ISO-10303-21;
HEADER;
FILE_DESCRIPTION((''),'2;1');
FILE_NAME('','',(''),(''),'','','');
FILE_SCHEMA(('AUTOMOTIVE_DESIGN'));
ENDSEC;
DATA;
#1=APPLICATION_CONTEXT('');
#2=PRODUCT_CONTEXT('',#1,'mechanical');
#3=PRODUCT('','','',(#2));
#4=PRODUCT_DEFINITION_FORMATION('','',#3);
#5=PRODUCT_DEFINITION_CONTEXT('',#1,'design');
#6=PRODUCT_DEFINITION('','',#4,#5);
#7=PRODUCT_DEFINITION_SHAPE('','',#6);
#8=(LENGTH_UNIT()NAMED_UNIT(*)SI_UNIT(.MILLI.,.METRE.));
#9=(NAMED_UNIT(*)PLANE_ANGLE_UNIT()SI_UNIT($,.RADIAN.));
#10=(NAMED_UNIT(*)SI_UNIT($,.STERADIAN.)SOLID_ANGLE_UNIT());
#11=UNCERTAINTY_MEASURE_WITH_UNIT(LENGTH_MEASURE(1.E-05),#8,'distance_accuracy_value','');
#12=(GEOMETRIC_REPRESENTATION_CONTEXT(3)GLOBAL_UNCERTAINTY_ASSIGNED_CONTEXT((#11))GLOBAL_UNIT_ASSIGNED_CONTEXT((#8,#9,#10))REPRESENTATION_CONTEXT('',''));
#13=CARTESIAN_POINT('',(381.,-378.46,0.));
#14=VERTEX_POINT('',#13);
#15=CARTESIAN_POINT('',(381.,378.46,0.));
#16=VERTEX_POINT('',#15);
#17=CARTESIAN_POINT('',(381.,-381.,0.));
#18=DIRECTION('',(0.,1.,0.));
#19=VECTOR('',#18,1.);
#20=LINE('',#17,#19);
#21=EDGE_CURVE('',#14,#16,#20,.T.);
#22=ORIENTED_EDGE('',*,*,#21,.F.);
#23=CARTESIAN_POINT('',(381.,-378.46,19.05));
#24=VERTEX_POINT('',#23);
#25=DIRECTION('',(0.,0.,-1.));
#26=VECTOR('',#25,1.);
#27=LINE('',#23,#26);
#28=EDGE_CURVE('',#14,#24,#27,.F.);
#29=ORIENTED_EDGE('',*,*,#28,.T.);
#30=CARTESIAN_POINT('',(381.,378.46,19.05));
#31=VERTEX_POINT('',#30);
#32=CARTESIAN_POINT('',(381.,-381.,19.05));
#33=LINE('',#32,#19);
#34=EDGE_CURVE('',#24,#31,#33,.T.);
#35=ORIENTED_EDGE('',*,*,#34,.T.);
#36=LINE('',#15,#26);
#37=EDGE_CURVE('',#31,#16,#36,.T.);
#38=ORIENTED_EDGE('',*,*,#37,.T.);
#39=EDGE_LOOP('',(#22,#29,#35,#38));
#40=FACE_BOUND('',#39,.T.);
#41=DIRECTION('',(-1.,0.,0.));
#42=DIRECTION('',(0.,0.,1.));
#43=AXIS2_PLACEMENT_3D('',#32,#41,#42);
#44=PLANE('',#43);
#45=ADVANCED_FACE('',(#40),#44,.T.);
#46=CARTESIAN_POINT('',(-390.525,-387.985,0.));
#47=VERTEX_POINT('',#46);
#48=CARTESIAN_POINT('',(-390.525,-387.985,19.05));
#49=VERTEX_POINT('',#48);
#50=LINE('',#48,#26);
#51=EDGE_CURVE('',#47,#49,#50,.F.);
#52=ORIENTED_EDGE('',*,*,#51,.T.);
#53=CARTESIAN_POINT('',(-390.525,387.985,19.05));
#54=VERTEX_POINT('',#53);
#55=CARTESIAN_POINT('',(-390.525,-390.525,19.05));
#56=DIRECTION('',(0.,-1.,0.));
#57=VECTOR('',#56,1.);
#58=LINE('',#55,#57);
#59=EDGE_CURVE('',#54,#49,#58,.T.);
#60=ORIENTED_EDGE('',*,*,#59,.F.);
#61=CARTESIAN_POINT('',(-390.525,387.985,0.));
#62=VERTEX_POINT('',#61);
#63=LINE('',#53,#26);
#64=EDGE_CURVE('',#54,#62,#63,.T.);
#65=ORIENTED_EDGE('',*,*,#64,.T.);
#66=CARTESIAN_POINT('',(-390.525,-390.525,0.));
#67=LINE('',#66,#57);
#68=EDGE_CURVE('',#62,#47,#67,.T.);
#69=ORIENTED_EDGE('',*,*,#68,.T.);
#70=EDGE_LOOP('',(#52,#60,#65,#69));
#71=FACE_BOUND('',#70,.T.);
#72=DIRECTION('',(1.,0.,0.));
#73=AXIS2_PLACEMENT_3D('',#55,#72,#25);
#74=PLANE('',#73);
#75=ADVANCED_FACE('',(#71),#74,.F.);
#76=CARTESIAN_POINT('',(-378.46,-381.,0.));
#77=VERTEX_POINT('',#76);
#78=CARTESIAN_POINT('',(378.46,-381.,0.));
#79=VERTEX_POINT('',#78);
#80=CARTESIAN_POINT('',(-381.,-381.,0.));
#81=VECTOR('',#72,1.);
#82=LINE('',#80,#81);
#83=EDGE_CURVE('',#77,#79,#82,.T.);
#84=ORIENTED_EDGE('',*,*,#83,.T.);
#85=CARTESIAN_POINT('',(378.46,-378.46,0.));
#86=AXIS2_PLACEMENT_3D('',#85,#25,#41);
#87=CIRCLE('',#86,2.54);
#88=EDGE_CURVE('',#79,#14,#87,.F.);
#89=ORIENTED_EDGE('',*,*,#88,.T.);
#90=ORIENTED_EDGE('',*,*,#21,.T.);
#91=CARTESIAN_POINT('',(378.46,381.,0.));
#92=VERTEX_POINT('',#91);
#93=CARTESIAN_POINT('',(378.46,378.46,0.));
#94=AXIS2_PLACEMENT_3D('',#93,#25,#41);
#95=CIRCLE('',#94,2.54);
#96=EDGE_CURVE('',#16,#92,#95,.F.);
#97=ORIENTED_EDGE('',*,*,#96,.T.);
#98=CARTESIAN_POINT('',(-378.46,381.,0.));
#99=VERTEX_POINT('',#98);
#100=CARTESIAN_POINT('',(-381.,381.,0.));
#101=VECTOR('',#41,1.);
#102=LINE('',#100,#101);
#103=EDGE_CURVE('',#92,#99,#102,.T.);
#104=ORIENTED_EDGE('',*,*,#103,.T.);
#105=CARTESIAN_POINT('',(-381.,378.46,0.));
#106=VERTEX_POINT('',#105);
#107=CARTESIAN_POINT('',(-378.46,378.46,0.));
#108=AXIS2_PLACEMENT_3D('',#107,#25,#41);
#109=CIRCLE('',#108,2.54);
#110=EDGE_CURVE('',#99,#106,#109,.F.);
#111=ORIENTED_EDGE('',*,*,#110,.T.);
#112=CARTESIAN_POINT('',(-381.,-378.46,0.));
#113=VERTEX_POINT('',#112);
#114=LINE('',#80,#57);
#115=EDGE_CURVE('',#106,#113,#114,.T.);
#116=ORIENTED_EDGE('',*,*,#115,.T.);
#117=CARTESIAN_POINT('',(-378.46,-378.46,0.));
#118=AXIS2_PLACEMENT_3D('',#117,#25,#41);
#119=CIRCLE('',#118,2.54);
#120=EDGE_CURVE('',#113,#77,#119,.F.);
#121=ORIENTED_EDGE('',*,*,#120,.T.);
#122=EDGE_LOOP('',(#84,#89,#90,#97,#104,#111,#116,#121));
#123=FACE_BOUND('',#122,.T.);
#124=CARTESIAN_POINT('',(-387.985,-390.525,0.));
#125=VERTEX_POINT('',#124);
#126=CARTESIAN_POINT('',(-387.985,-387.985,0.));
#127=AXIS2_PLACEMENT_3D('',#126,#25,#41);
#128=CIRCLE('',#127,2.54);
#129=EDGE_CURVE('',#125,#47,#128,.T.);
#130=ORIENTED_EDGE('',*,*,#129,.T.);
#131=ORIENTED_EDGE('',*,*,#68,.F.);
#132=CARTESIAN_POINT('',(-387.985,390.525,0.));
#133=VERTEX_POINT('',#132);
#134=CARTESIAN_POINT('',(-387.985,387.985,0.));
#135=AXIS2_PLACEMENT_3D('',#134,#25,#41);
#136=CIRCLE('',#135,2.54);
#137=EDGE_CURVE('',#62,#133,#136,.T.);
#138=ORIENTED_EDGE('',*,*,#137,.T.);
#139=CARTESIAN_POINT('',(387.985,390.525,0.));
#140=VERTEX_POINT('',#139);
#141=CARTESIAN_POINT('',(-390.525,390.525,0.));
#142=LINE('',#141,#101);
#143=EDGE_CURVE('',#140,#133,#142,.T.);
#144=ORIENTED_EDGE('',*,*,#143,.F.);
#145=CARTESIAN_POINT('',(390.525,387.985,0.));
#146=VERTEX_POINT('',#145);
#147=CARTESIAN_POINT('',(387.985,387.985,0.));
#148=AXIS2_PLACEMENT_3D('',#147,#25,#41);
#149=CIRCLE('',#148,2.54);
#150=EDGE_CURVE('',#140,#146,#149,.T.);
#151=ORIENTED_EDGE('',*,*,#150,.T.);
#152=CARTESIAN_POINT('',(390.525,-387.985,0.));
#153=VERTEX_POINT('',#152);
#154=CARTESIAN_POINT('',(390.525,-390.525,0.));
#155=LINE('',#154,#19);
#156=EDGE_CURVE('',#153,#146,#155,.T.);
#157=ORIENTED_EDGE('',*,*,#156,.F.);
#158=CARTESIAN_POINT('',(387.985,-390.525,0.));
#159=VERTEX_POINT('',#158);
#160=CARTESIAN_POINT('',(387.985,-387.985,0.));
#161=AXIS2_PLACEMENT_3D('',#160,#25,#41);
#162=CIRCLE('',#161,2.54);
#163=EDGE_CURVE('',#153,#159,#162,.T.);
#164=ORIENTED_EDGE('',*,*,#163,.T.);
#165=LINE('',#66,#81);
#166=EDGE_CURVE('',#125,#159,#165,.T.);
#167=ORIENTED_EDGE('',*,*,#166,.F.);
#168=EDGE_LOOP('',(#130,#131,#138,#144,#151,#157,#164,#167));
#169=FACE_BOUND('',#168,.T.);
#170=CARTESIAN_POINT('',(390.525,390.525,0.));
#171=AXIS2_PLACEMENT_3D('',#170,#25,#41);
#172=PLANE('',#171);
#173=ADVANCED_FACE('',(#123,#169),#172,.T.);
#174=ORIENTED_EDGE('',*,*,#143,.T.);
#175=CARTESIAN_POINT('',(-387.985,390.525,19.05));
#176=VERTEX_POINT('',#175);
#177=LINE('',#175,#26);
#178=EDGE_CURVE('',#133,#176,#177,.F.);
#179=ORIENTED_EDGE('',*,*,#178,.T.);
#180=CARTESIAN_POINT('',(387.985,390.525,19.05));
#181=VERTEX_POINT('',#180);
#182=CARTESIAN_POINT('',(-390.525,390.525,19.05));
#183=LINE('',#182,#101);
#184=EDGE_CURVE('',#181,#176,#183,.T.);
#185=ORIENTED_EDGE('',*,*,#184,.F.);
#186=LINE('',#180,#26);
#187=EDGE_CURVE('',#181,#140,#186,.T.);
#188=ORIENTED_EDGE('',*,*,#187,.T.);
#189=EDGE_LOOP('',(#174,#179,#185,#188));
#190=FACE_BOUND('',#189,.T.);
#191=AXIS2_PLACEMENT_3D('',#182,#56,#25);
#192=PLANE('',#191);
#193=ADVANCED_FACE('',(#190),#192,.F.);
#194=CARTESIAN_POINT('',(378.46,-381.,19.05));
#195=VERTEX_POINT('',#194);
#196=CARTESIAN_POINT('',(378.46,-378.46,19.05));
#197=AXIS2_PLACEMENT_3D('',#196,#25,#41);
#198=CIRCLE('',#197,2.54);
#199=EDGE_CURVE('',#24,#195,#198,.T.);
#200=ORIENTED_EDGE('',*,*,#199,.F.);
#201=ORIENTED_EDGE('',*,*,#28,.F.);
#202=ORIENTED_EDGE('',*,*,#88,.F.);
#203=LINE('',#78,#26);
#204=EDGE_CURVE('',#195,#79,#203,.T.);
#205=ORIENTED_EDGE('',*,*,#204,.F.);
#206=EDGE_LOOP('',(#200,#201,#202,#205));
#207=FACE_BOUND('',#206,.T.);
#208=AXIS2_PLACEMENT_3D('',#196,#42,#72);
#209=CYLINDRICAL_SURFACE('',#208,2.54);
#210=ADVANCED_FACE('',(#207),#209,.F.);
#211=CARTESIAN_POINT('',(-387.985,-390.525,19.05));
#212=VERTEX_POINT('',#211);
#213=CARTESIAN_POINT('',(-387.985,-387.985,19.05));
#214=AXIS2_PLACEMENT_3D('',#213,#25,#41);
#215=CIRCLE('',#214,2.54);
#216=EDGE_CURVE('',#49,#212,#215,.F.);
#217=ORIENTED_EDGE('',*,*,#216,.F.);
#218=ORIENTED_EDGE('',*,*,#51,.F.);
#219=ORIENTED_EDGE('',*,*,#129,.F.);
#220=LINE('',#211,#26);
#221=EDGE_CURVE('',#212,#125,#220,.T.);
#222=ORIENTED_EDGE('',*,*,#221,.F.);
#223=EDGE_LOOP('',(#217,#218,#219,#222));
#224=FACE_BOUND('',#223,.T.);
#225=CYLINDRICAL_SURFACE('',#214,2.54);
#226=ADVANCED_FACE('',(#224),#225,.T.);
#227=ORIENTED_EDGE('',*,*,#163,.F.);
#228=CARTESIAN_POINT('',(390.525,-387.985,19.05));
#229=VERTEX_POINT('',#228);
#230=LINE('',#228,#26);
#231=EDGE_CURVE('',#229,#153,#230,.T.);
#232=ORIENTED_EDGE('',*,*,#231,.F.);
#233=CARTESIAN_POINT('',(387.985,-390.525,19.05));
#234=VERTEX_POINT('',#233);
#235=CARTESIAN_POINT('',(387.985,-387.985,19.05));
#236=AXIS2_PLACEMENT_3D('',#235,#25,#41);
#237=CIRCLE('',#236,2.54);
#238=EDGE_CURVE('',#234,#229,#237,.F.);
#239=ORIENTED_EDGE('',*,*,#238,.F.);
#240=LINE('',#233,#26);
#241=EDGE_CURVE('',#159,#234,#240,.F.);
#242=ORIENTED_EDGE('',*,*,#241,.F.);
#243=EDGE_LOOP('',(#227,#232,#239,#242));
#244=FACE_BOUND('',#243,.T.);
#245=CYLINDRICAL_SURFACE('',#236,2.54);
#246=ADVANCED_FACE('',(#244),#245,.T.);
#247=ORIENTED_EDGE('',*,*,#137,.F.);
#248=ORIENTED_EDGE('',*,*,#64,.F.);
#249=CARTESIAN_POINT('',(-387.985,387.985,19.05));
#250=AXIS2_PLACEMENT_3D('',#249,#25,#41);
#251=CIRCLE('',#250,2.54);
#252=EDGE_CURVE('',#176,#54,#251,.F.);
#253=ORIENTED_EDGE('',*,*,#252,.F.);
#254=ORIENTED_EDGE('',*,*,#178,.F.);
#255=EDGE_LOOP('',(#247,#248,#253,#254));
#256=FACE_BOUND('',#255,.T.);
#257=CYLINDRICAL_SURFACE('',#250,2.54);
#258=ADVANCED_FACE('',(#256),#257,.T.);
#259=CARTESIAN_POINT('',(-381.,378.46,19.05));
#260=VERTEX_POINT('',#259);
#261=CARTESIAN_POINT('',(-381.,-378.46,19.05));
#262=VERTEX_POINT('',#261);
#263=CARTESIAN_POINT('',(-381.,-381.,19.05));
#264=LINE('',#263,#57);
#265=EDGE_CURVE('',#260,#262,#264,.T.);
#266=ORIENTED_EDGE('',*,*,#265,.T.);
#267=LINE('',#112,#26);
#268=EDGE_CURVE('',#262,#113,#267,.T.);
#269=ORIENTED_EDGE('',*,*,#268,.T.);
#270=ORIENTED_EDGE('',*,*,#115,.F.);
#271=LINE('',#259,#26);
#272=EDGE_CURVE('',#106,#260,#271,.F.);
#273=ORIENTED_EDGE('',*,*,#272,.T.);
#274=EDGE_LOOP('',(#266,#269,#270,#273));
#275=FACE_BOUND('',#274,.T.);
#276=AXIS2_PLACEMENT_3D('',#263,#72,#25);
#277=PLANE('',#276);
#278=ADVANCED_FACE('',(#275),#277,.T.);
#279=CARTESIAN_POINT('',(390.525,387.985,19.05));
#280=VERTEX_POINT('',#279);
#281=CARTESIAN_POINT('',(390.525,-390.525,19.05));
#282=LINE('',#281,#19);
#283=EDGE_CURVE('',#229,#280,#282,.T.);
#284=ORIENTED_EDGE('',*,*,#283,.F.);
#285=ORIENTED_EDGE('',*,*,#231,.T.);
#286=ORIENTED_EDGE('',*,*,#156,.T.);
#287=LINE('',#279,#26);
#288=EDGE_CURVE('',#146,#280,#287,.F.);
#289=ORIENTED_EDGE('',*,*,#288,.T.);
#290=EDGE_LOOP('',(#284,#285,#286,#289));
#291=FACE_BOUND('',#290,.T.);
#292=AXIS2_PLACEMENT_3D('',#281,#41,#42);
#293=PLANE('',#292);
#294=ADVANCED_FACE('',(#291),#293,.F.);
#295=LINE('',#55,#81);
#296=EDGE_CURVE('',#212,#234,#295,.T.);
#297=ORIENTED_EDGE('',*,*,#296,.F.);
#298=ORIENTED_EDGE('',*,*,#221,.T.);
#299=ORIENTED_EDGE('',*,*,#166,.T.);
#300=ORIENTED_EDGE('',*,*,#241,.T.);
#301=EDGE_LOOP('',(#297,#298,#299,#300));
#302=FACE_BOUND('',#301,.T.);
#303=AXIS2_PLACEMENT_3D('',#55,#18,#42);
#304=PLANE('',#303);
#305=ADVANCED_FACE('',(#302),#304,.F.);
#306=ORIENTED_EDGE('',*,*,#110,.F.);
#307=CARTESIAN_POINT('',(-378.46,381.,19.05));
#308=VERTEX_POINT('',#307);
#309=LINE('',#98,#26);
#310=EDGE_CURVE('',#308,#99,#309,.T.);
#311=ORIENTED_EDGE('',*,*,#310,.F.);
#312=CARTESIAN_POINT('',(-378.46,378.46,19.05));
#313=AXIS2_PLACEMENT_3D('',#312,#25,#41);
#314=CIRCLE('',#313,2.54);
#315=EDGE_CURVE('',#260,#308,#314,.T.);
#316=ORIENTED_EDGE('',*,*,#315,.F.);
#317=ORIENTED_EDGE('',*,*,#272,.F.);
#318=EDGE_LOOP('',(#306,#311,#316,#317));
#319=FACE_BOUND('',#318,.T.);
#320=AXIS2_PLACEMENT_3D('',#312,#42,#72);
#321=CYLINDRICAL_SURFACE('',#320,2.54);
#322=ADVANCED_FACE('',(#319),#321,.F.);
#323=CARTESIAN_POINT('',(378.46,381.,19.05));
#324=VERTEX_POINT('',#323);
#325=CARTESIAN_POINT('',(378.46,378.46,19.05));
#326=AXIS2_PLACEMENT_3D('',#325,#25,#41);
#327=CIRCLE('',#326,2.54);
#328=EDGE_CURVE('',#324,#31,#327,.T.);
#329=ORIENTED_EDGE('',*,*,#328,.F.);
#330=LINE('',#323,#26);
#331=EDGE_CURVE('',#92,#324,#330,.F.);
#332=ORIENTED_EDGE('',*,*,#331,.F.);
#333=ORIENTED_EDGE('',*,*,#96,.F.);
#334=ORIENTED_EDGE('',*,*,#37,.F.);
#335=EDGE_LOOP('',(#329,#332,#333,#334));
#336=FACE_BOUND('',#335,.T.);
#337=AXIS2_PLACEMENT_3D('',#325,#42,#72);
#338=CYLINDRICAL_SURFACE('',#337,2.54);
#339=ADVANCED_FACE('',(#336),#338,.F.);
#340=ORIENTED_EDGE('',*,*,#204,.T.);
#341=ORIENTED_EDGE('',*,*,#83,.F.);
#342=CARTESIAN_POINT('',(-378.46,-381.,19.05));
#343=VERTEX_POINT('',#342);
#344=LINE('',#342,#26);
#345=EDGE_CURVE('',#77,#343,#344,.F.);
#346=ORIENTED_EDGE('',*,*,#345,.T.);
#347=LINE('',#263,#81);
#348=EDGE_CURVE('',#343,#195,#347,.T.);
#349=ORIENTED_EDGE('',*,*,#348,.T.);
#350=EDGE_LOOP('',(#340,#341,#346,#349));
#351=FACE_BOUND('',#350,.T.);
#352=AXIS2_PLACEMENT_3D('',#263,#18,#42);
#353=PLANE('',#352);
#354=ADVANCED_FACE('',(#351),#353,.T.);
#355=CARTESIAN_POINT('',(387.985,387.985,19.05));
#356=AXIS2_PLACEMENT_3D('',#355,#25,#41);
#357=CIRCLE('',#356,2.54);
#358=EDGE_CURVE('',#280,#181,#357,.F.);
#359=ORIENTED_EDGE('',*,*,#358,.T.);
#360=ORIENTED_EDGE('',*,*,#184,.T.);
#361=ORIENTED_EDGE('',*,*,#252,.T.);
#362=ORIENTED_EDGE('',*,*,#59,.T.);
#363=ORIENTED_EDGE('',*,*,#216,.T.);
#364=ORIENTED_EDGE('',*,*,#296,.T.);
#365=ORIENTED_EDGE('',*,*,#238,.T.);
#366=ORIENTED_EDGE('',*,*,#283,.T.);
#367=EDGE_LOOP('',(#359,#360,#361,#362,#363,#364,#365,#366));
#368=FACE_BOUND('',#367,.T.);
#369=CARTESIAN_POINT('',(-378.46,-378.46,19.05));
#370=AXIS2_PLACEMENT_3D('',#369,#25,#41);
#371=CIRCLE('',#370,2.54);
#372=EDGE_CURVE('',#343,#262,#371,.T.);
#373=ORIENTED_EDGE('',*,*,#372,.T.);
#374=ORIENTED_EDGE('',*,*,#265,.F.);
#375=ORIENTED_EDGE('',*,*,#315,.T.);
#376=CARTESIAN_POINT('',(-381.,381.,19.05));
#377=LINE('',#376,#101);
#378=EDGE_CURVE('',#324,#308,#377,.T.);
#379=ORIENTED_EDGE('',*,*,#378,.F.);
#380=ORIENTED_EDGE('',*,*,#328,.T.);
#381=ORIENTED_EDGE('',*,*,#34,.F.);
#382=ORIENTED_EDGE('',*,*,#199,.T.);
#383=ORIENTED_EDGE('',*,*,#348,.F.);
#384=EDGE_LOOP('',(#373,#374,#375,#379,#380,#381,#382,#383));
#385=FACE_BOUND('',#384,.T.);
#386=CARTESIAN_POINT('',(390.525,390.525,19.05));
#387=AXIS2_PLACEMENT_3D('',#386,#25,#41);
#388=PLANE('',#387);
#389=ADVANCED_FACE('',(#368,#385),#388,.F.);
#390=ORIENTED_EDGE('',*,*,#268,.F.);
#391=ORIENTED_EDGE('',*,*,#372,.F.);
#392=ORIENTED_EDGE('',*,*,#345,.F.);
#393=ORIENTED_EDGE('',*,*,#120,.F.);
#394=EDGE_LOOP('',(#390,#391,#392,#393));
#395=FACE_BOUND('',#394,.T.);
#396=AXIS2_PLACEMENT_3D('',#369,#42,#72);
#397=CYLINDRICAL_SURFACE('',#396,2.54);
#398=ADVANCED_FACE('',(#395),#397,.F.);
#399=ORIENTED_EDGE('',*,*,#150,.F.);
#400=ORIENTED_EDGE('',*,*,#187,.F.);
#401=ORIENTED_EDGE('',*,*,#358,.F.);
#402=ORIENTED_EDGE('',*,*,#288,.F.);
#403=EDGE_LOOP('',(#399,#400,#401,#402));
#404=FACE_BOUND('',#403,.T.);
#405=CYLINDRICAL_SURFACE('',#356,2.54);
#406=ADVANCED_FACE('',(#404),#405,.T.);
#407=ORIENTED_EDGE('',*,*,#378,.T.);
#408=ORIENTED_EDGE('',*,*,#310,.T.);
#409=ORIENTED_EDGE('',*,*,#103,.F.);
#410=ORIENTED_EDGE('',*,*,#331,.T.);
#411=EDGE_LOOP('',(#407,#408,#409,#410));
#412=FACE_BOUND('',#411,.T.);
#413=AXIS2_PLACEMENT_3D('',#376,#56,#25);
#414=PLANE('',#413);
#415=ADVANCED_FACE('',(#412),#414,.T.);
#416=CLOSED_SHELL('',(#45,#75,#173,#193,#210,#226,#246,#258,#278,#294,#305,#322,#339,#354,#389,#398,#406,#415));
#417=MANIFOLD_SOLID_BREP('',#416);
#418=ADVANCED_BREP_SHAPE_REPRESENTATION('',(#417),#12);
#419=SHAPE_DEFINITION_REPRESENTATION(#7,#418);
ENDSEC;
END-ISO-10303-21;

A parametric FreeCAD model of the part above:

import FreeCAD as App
import Part
import Sketcher

V = App.Vector
Q = App.Units.Quantity


def edges_at(feature, points):
    """Names of the edges that pass closest to the given points."""
    edges = feature.Shape.Edges
    near = lambda p: min(range(len(edges)), key=lambda i: edges[i].distToShape(Part.Vertex(*p))[0])
    return sorted({f"Edge{near(p) + 1}" for p in points})

doc = App.newDocument("Part")
body = doc.addObject("PartDesign::Body", "Body")

# Sketch on XY plane
sketch1 = body.newObject("Sketcher::SketchObject", "Sketch")
sketch1.AttachmentSupport = (doc.getObject("XY_Plane"), [""])
sketch1.MapMode = "FlatFace"
sketch1.addGeometry(Part.LineSegment(V(-391, 391, 0), V(-391, -391, 0)), False)
sketch1.addGeometry(Part.LineSegment(V(-391, -391, 0), V(391, -391, 0)), False)
sketch1.addGeometry(Part.LineSegment(V(391, -391, 0), V(391, 391, 0)), False)
sketch1.addGeometry(Part.LineSegment(V(391, 391, 0), V(-391, 391, 0)), False)
sketch1.addGeometry(Part.LineSegment(V(381, -381, 0), V(-381, -381, 0)), False)
sketch1.addGeometry(Part.LineSegment(V(-381, -381, 0), V(-381, 381, 0)), False)
sketch1.addGeometry(Part.LineSegment(V(-381, 381, 0), V(381, 381, 0)), False)
sketch1.addGeometry(Part.LineSegment(V(381, 381, 0), V(381, -381, 0)), False)
sketch1.addConstraint(Sketcher.Constraint("Coincident", 0, 2, 1, 1))
sketch1.addConstraint(Sketcher.Constraint("Coincident", 1, 2, 2, 1))
sketch1.addConstraint(Sketcher.Constraint("Coincident", 2, 2, 3, 1))
sketch1.addConstraint(Sketcher.Constraint("Coincident", 3, 2, 0, 1))
sketch1.addConstraint(Sketcher.Constraint("Coincident", 4, 2, 5, 1))
sketch1.addConstraint(Sketcher.Constraint("Coincident", 5, 2, 6, 1))
sketch1.addConstraint(Sketcher.Constraint("Coincident", 6, 2, 7, 1))
sketch1.addConstraint(Sketcher.Constraint("Coincident", 7, 2, 4, 1))
sketch1.addConstraint(Sketcher.Constraint("Vertical", 0))
sketch1.addConstraint(Sketcher.Constraint("Horizontal", 1))
sketch1.addConstraint(Sketcher.Constraint("Vertical", 2))
sketch1.addConstraint(Sketcher.Constraint("Horizontal", 3))
sketch1.addConstraint(Sketcher.Constraint("Horizontal", 4))
sketch1.addConstraint(Sketcher.Constraint("Vertical", 5))
sketch1.addConstraint(Sketcher.Constraint("Horizontal", 6))
sketch1.addConstraint(Sketcher.Constraint("Vertical", 7))
sketch1.addConstraint(Sketcher.Constraint("Symmetric", 0, 2, 2, 2, -1, 1))
sketch1.addConstraint(Sketcher.Constraint("Symmetric", 4, 2, 6, 2, -1, 1))
sketch1.addConstraint(Sketcher.Constraint("Equal", 3, 0))
sketch1.addConstraint(Sketcher.Constraint("Equal", 6, 5))
sketch1.addConstraint(Sketcher.Constraint("DistanceX", 4, 2, 4, 1, Q("30 in")))
sketch1.addConstraint(Sketcher.Constraint("DistanceX", 1, 1, 1, 2, Q("30.75 in")))
pad1 = body.newObject("PartDesign::Pad", "Pad")
pad1.Profile = sketch1
pad1.Length = Q("0.75 in")
doc.recompute()

fillet = body.newObject("PartDesign::Fillet", "Fillet")
fillet.Base = (pad1, edges_at(pad1, [
    (381, -381, 9.525),
    (381, 381, 9.525),
    (-381, 381, 9.525),
    (-381, -381, 9.525),
    (390.525, -390.525, 9.525),
    (-390.525, -390.525, 9.525),
    (-390.525, 390.525, 9.525),
    (390.525, 390.525, 9.525),
]))
fillet.Radius = Q("0.1 in")

doc.recompute()
